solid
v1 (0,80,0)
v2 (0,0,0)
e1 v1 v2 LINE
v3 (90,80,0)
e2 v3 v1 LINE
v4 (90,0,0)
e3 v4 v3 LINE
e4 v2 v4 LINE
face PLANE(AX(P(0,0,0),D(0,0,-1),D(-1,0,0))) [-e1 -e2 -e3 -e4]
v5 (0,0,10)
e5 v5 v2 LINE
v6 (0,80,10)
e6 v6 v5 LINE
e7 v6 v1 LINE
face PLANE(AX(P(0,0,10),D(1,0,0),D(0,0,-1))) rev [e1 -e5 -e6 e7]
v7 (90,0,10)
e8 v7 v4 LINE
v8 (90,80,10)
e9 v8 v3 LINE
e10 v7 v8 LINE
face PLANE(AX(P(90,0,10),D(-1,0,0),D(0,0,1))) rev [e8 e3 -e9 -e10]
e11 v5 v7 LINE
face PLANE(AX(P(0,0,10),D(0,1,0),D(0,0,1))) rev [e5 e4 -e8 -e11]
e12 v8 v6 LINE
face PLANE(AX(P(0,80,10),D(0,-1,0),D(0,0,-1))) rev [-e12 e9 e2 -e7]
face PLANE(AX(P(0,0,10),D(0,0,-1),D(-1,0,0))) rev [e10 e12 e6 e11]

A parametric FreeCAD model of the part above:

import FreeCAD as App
import Part
import Sketcher

doc = App.newDocument("Part")
body = doc.addObject("PartDesign::Body", "Body")

# Sketch on XY plane
sketch1 = body.newObject("Sketcher::SketchObject", "Sketch")
sketch1.AttachmentSupport = (doc.getObject("XY_Plane"), [""])
sketch1.MapMode = "FlatFace"
sketch1.addGeometry([
    Part.LineSegment(App.Vector(0, 80, 0), App.Vector(0, 0, 0)),
    Part.LineSegment(App.Vector(0, 0, 0), App.Vector(90, 0, 0)),
    Part.LineSegment(App.Vector(90, 0, 0), App.Vector(90, 80, 0)),
    Part.LineSegment(App.Vector(90, 80, 0), App.Vector(0, 80, 0)),
], False)
sketch1.addConstraint([
    Sketcher.Constraint("Coincident", 0, 2, 1, 1),
    Sketcher.Constraint("Coincident", 1, 2, 2, 1),
    Sketcher.Constraint("Coincident", 2, 2, 3, 1),
    Sketcher.Constraint("Coincident", 3, 2, 0, 1),
    Sketcher.Constraint("Vertical", 0),
    Sketcher.Constraint("Horizontal", 1),
    Sketcher.Constraint("Vertical", 2),
    Sketcher.Constraint("Horizontal", 3),
    Sketcher.Constraint("Coincident", 0, 2, -1, 1),
    Sketcher.Constraint("DistanceX", 1, 1, 1, 2, 90.0),
    Sketcher.Constraint("DistanceY", 0, 2, 0, 1, 80.0),
])
pad1 = body.newObject("PartDesign::Pad", "Pad")
pad1.Profile = sketch1
pad1.Length = 10

doc.recompute()
